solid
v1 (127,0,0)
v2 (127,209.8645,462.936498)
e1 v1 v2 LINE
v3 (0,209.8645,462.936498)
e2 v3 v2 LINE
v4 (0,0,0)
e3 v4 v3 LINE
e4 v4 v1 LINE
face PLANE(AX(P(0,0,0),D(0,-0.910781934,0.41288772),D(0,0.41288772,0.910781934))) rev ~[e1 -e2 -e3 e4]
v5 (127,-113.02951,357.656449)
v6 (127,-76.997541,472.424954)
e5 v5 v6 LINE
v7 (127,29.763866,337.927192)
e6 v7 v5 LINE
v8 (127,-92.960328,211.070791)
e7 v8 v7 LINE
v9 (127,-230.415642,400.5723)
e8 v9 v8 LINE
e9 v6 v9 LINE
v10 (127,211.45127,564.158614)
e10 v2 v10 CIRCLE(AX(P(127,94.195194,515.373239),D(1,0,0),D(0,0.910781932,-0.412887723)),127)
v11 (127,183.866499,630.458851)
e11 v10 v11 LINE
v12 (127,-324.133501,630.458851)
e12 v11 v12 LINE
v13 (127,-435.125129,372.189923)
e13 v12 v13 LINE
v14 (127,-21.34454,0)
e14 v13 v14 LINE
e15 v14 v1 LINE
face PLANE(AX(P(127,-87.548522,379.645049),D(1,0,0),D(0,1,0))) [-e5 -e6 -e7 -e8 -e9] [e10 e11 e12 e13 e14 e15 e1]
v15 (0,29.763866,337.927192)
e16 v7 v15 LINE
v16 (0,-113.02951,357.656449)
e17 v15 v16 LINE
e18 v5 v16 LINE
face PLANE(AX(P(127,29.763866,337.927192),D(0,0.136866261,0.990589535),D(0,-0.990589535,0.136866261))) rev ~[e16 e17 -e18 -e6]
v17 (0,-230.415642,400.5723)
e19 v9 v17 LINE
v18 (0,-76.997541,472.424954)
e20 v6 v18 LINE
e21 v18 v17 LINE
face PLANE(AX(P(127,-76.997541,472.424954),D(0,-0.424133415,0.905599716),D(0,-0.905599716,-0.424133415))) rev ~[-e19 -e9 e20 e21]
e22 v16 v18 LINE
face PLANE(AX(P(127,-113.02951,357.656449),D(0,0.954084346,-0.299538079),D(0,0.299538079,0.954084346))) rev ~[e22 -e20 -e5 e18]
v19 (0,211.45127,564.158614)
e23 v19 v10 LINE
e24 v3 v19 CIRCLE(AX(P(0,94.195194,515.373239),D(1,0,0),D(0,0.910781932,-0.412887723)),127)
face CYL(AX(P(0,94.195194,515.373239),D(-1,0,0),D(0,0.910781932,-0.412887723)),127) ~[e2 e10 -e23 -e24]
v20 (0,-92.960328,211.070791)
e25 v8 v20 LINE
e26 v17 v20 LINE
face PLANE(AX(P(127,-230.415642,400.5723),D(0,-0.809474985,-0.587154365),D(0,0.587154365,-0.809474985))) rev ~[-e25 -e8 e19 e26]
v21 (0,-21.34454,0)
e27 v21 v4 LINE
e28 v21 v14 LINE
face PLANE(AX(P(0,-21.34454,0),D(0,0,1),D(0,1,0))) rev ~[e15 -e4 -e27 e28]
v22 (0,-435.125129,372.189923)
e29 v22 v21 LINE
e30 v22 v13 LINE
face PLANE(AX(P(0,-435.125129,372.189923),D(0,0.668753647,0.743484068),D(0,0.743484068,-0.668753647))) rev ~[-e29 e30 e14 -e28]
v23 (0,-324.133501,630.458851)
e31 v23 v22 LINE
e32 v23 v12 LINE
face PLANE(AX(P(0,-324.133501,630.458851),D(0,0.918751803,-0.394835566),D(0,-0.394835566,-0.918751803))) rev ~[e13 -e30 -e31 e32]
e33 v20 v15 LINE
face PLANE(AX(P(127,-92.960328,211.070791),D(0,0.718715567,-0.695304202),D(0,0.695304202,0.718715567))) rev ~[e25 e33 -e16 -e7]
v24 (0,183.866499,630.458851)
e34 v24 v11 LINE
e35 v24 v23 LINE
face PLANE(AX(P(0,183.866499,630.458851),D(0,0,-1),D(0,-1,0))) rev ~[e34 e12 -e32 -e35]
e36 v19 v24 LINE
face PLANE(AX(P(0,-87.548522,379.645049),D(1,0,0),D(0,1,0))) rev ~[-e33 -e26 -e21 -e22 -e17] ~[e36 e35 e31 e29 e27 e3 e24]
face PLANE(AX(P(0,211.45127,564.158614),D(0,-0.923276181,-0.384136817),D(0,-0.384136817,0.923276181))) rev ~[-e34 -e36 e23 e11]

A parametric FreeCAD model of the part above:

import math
import FreeCAD as App
import Part
import Sketcher
from FreeCAD import Vector
Q = App.Units.Quantity

doc = App.newDocument("Part")
body = doc.addObject("PartDesign::Body", "Body")

# Sketch on YZ plane
sketch1 = body.newObject("Sketcher::SketchObject", "Sketch")
sketch1.AttachmentSupport = (doc.getObject("YZ_Plane"), [""])
sketch1.MapMode = "FlatFace"
sketch1.addGeometry(Part.LineSegment(Vector(-21, 0, 0), Vector(0, 0, 0)), False)
sketch1.addGeometry(Part.LineSegment(Vector(0, 0, 0), Vector(210, 463, 0)), False)
sketch1.addGeometry(Part.ArcOfCircle(Part.Circle(Vector(94, 515, 0), Vector(0, 0, 1), 127), math.radians(-24), math.radians(23)), False)
sketch1.addGeometry(Part.LineSegment(Vector(211, 564, 0), Vector(184, 630, 0)), False)
sketch1.addGeometry(Part.LineSegment(Vector(184, 630, 0), Vector(-324, 630, 0)), False)
sketch1.addGeometry(Part.LineSegment(Vector(-324, 630, 0), Vector(-435, 372, 0)), False)
sketch1.addGeometry(Part.LineSegment(Vector(-435, 372, 0), Vector(-21, 0, 0)), False)
sketch1.addConstraint(Sketcher.Constraint("Coincident", 0, 2, 1, 1))
sketch1.addConstraint(Sketcher.Constraint("Tangent", 1, 2, 2, 1))
sketch1.addConstraint(Sketcher.Constraint("Tangent", 2, 2, 3, 1))
sketch1.addConstraint(Sketcher.Constraint("Coincident", 3, 2, 4, 1))
sketch1.addConstraint(Sketcher.Constraint("Coincident", 4, 2, 5, 1))
sketch1.addConstraint(Sketcher.Constraint("Coincident", 5, 2, 6, 1))
sketch1.addConstraint(Sketcher.Constraint("Coincident", 6, 2, 0, 1))
sketch1.addConstraint(Sketcher.Constraint("Horizontal", 0))
sketch1.addConstraint(Sketcher.Constraint("Horizontal", 4))
sketch1.addConstraint(Sketcher.Constraint("Coincident", 0, 2, -1, 1))
sketch1.addConstraint(Sketcher.Constraint("Radius", 2, Q("5 in")))
sketch1.addConstraint(Sketcher.Constraint("DistanceX", 4, 2, 4, 1, Q("20 in")))
sketch1.addConstraint(Sketcher.Constraint("DistanceY", 5, 2, 1, 2, Q("3.5726998 in")))
sketch1.addConstraint(Sketcher.Constraint("DistanceX", 0, 1, 0, 2, 21.34454))
sketch1.addConstraint(Sketcher.Constraint("DistanceX", -1, 1, 1, 2, 209.8645))
sketch1.addConstraint(Sketcher.Constraint("DistanceX", -1, 1, 3, 2, 183.866499))
sketch1.addConstraint(Sketcher.Constraint("DistanceY", -1, 1, 2, 3, 515.373239))
sketch1.addConstraint(Sketcher.Constraint("DistanceX", -1, 1, 2, 2, 211.45127))
sketch1.addConstraint(Sketcher.Constraint("DistanceX", 5, 2, -1, 1, 435.125129))
pad1 = body.newObject("PartDesign::Pad", "Pad")
pad1.Profile = sketch1
pad1.Length = Q("5 in")

# Sketch on YZ plane
sketch2 = body.newObject("Sketcher::SketchObject", "Sketch001")
sketch2.AttachmentSupport = (doc.getObject("YZ_Plane"), [""])
sketch2.MapMode = "FlatFace"
sketch2.AttachmentOffset = App.Placement(Vector(0, 0, 5 * 25.4), App.Rotation())
sketch2.addGeometry(Part.LineSegment(Vector(-77, 472, 0), Vector(-230, 401, 0)), False)
sketch2.addGeometry(Part.LineSegment(Vector(-230, 401, 0), Vector(-93, 211, 0)), False)
sketch2.addGeometry(Part.LineSegment(Vector(-93, 211, 0), Vector(30, 338, 0)), False)
sketch2.addGeometry(Part.LineSegment(Vector(30, 338, 0), Vector(-113, 358, 0)), False)
sketch2.addGeometry(Part.LineSegment(Vector(-113, 358, 0), Vector(-77, 472, 0)), False)
sketch2.addConstraint(Sketcher.Constraint("Coincident", 0, 2, 1, 1))
sketch2.addConstraint(Sketcher.Constraint("Coincident", 1, 2, 2, 1))
sketch2.addConstraint(Sketcher.Constraint("Coincident", 2, 2, 3, 1))
sketch2.addConstraint(Sketcher.Constraint("Coincident", 3, 2, 4, 1))
sketch2.addConstraint(Sketcher.Constraint("Coincident", 4, 2, 0, 1))
sketch2.addConstraint(Sketcher.Constraint("Distance", 0, 169.4105))
sketch2.addConstraint(Sketcher.Constraint("DistanceY", -1, 1, 0, 2, 400.5723))
sketch2.addConstraint(Sketcher.Constraint("DistanceY", 1, 2, 2, 2, 126.856401))
sketch2.addConstraint(Sketcher.Constraint("DistanceX", 0, 2, 4, 2, 153.418101))
sketch2.addConstraint(Sketcher.Constraint("Distance", 1, 234.104219))
sketch2.addConstraint(Sketcher.Constraint("Distance", 4, 120.291781))
sketch2.addConstraint(Sketcher.Constraint("DistanceX", 0, 2, -1, 1, 230.415642))
sketch2.addConstraint(Sketcher.Constraint("DistanceX", 1, 2, -1, 1, 92.960328))
sketch2.addConstraint(Sketcher.Constraint("DistanceX", 3, 2, -1, 1, 113.02951))
sketch2.addConstraint(Sketcher.Constraint("DistanceX", 0, 2, 2, 2, 260.179508))
pocket1 = body.newObject("PartDesign::Pocket", "Pocket")
pocket1.Profile = sketch2
pocket1.Length = Q("10 in")

doc.recompute()
